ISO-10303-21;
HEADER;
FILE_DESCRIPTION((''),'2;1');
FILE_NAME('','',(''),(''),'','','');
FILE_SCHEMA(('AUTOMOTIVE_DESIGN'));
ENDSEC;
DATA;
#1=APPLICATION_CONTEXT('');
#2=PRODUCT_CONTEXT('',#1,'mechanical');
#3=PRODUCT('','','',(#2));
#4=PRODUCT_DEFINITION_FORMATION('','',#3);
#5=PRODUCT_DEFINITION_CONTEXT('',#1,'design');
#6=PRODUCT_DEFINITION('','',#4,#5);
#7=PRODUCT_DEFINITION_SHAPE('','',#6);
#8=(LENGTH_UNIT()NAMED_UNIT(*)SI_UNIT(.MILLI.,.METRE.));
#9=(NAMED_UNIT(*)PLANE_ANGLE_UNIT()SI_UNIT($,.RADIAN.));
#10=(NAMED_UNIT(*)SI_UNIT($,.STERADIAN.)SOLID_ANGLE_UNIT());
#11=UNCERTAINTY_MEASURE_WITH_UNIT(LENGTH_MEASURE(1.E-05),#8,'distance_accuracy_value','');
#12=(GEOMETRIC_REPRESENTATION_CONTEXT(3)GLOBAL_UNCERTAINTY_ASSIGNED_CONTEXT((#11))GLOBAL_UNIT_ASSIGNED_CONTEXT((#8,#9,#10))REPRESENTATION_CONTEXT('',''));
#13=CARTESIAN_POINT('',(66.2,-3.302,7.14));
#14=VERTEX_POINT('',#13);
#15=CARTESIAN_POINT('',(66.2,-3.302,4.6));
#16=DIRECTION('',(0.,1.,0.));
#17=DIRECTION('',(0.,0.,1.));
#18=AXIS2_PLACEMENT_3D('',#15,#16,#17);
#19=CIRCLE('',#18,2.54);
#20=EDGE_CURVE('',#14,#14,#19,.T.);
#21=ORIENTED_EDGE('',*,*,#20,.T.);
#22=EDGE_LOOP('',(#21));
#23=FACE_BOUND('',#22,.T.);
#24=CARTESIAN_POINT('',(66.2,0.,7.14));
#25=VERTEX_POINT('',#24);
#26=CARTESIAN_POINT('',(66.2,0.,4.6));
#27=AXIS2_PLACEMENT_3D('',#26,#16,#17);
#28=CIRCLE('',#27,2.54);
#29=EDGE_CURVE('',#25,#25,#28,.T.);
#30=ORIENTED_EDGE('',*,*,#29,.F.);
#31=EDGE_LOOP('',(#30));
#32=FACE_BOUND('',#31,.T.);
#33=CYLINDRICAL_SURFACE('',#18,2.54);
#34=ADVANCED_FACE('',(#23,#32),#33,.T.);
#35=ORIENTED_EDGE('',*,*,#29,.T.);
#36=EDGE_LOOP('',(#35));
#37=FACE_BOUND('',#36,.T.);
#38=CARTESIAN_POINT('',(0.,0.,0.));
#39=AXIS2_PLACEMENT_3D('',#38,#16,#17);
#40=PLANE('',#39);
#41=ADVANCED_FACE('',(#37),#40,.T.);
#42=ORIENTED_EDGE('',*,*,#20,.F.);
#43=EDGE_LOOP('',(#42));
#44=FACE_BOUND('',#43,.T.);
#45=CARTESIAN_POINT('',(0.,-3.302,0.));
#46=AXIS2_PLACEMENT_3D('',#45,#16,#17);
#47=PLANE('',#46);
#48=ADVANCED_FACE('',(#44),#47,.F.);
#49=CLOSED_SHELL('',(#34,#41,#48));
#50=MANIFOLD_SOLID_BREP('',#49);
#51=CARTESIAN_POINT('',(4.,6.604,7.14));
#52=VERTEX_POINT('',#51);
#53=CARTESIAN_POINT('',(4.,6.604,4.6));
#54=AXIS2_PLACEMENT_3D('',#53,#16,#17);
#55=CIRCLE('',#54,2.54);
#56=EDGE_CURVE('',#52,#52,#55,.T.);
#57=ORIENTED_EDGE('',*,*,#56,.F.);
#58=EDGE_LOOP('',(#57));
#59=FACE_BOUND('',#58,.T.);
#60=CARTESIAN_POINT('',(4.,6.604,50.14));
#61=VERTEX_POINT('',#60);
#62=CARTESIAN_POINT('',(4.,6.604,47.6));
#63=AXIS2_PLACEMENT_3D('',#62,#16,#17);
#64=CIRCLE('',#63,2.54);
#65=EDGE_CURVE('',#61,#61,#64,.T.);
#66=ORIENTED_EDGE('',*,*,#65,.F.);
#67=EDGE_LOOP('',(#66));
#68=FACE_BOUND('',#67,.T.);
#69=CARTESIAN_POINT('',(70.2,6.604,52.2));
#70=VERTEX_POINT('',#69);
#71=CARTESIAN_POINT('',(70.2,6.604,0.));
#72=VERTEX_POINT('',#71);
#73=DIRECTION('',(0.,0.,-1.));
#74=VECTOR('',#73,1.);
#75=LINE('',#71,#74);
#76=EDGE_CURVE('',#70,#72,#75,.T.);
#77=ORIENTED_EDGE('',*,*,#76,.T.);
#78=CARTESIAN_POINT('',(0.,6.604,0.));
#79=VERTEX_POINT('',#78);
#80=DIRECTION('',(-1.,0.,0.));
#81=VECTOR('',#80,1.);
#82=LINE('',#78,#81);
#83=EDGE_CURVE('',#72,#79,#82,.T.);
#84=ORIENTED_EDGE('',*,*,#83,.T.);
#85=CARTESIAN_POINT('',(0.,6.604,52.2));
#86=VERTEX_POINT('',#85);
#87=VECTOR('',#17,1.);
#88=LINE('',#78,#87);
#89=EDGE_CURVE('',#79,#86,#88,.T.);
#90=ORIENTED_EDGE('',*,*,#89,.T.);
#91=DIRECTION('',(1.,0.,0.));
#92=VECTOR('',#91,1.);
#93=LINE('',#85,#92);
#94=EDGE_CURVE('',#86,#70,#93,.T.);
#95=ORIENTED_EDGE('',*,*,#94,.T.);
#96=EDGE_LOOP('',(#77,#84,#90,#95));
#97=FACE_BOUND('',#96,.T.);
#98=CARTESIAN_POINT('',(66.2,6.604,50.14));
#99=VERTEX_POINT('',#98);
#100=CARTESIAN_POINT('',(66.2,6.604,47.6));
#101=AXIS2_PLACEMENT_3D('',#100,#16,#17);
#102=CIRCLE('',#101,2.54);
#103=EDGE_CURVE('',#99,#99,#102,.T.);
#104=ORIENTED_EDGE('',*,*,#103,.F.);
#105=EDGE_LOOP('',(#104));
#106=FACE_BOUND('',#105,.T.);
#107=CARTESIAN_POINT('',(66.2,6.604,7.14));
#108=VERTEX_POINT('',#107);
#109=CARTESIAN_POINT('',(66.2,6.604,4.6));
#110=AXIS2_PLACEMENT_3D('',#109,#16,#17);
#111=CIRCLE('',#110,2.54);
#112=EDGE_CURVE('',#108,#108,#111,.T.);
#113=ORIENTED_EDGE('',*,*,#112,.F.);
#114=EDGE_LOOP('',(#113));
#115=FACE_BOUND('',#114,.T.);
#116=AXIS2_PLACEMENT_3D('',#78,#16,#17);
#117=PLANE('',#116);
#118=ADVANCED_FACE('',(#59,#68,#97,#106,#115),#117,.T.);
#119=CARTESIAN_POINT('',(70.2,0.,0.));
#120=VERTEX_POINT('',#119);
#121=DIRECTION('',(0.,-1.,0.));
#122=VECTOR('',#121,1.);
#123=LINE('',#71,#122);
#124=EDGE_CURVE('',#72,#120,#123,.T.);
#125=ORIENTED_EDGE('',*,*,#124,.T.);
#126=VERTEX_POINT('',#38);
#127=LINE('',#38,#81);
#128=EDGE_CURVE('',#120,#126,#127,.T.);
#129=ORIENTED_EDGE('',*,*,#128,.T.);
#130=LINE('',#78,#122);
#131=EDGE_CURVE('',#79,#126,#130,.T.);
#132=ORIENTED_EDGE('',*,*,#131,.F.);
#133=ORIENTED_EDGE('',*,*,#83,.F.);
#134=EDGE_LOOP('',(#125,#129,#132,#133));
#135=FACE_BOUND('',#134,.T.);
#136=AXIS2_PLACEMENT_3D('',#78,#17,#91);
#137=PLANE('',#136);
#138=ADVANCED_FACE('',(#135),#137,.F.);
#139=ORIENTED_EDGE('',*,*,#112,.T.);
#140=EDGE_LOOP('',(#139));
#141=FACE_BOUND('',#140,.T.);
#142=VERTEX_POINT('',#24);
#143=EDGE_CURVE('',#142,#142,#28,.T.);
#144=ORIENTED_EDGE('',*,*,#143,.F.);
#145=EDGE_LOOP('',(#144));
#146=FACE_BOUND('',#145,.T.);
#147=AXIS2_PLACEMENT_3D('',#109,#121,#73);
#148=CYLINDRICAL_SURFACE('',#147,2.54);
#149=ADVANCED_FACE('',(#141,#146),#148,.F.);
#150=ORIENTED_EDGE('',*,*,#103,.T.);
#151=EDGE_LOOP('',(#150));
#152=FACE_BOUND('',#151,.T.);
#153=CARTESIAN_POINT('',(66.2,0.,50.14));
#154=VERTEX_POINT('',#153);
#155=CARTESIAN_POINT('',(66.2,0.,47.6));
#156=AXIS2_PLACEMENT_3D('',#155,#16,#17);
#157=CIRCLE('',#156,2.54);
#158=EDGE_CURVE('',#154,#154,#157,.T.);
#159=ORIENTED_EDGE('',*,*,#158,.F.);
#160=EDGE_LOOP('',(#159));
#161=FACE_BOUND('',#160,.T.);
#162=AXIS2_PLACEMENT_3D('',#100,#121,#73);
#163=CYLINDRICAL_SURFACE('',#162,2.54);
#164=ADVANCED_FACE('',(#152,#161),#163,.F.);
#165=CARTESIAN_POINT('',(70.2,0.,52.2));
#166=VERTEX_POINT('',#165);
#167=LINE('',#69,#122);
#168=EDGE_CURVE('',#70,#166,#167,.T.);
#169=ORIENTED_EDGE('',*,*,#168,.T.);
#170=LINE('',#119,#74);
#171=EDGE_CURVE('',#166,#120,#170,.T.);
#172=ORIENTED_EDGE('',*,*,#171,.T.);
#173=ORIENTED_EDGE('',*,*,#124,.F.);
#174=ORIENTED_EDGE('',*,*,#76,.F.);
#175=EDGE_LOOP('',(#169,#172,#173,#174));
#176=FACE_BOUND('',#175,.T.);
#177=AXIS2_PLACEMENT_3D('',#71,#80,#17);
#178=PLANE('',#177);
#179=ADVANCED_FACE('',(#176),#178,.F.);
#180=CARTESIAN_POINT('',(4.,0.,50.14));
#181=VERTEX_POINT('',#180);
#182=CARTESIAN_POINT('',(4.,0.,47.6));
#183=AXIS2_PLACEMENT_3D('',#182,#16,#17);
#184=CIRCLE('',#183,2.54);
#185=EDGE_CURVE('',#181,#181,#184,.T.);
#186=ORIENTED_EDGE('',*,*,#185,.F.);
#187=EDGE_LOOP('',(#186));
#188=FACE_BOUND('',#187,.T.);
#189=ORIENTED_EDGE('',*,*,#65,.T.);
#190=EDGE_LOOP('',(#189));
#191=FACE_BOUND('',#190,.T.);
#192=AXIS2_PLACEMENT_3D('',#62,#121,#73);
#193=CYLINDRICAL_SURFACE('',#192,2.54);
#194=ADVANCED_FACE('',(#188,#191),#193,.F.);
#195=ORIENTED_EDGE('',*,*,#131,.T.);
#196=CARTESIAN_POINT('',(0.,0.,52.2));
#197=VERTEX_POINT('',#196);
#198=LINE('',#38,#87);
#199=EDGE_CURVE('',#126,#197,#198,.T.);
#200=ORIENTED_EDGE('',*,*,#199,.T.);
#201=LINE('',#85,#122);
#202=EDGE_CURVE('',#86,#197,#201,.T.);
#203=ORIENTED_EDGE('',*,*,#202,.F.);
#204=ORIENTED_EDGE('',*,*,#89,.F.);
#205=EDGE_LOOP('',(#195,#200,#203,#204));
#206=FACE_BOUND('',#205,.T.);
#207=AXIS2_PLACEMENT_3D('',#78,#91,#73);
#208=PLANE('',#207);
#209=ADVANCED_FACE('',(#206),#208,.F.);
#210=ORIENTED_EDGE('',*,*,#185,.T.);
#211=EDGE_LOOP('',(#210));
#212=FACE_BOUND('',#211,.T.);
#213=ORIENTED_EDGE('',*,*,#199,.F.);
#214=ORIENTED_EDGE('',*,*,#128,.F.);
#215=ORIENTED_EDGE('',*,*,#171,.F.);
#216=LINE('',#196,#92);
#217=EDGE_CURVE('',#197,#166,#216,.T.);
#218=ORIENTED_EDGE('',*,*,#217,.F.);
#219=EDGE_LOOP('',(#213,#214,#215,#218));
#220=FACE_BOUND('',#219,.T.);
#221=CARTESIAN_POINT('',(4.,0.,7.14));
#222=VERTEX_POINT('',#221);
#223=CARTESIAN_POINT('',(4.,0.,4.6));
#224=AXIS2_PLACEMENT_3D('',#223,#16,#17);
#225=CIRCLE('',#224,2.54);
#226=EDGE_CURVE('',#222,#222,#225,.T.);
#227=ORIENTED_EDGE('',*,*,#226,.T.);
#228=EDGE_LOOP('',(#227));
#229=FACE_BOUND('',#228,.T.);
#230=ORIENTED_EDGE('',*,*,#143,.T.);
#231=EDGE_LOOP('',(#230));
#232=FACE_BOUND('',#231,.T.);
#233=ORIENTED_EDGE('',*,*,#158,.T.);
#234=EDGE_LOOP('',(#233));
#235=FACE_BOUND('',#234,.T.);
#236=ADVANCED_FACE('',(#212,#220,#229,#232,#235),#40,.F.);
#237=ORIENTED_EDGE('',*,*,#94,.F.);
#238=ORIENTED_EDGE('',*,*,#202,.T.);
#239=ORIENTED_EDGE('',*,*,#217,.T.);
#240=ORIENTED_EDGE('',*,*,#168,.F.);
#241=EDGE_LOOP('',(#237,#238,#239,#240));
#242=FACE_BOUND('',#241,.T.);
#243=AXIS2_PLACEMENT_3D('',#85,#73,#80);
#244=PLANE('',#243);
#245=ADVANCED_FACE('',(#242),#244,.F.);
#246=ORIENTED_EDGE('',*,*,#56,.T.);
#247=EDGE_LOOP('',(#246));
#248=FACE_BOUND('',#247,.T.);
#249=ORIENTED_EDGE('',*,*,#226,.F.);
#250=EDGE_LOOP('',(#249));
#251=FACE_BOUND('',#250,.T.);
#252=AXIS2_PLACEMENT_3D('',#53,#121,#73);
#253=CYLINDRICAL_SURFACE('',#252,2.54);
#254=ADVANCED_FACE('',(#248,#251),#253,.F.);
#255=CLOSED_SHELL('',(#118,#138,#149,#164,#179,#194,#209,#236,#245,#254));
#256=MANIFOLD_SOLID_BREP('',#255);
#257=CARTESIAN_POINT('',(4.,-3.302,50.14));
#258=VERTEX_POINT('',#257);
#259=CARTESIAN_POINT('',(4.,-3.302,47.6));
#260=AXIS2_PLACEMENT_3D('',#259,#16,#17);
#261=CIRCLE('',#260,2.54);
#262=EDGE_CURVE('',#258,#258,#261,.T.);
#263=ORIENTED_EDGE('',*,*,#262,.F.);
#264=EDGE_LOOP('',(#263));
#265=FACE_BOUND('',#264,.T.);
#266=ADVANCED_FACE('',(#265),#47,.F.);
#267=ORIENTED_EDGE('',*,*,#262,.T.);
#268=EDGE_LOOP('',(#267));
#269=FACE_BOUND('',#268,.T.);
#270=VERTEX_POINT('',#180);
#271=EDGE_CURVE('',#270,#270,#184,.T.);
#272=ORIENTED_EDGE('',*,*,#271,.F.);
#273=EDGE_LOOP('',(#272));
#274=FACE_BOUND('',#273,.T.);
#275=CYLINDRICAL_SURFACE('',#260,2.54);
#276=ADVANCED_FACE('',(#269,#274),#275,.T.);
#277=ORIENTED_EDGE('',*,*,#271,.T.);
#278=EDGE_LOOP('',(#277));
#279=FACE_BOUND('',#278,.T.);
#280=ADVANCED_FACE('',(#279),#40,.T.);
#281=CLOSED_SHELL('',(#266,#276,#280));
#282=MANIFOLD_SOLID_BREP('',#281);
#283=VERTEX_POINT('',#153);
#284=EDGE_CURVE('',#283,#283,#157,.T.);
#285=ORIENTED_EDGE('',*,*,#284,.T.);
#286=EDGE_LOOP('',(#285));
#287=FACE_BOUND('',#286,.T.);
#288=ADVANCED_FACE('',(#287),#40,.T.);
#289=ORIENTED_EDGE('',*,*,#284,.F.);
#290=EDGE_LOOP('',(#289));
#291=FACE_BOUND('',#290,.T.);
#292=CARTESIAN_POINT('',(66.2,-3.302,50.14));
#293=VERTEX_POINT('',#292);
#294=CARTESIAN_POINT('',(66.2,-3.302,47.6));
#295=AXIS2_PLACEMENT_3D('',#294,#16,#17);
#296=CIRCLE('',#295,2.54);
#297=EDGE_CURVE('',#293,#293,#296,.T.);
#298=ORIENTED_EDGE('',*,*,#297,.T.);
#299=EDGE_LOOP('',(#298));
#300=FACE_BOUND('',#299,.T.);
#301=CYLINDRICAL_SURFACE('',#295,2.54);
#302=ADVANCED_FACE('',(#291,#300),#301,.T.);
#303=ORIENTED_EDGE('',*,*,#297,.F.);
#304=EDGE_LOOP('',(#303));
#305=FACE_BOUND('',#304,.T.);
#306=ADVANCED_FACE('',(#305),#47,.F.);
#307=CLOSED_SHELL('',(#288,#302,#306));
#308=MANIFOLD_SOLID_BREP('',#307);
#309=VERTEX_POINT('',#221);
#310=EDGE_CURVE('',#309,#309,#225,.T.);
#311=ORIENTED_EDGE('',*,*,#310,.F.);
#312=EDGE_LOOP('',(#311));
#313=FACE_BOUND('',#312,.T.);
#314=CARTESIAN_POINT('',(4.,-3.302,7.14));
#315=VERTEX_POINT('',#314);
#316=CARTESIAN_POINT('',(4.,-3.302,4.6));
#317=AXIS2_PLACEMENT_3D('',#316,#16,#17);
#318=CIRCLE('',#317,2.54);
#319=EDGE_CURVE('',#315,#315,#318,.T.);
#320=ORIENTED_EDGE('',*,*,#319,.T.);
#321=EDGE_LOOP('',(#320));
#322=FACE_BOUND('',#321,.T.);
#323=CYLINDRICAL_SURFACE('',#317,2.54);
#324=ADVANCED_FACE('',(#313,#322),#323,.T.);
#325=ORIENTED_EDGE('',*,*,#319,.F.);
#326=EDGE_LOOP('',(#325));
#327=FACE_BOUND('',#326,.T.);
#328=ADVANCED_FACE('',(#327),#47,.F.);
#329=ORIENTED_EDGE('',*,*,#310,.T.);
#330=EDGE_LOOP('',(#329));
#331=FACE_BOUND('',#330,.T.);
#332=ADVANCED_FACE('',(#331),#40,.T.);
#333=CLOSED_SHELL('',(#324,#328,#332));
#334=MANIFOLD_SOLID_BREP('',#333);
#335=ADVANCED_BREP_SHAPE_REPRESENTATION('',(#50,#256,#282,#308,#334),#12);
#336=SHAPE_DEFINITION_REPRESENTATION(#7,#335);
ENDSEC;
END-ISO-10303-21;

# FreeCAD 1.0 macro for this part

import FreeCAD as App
import Part
import Sketcher

V = App.Vector
Q = App.Units.Quantity

doc = App.newDocument("Part")
params = doc.addObject("Spreadsheet::Sheet", "Params")
for row, (alias, value) in enumerate([
    ("sketch1_diameter", "0.2 in"),
    ("pad1_length", "0.26 in"),
    ("sketch2_diameter", "0.2 in"),
    ("pad2_length", "0.13 in"),
    ("sketch3_diameter", "0.2 in"),
    ("pad3_length", "0.13 in"),
    ("sketch4_diameter", "0.2 in"),
    ("pad4_length", "0.13 in"),
    ("sketch5_diameter", "0.2 in"),
    ("pad5_length", "0.13 in"),
], start=1):
    params.set(f"A{row}", alias)
    params.set(f"B{row}", "=" + value)
    params.setAlias(f"B{row}", alias)

body = doc.addObject("PartDesign::Body", "Body")

# Sketch on XZ plane
sketch1 = doc.addObject("Sketcher::SketchObject", "Sketch")
body.addObject(sketch1)
sketch1.AttachmentSupport = (doc.XZ_Plane, [""])
sketch1.MapMode = "FlatFace"
sketch1.addGeometry([
    Part.LineSegment(V(0, 0, 0), V(0, 52.2, 0)),  # 0
    Part.LineSegment(V(0, 52.2, 0), V(70.2, 52.2, 0)),  # 1
    Part.LineSegment(V(70.2, 52.2, 0), V(70.2, 0, 0)),  # 2
    Part.LineSegment(V(70.2, 0, 0), V(0, 0, 0)),  # 3
    Part.Circle(V(4, 47.6, 0), V(0, 0, 1), 2.54),  # 4
    Part.Circle(V(66.2, 47.6, 0), V(0, 0, 1), 2.54),  # 5
    Part.Circle(V(4, 4.6, 0), V(0, 0, 1), 2.54),  # 6
    Part.Circle(V(66.2, 4.6, 0), V(0, 0, 1), 2.54),  # 7
], False)
sketch1.addConstraint([
    Sketcher.Constraint("Coincident", 0, 2, 1, 1),
    Sketcher.Constraint("Coincident", 1, 2, 2, 1),
    Sketcher.Constraint("Coincident", 2, 2, 3, 1),
    Sketcher.Constraint("Coincident", 3, 2, 0, 1),
    Sketcher.Constraint("Vertical", 0),
    Sketcher.Constraint("Horizontal", 1),
    Sketcher.Constraint("Vertical", 2),
    Sketcher.Constraint("Horizontal", 3),
    Sketcher.Constraint("Coincident", 3, 2, -1, 1),
    Sketcher.Constraint("Equal", 4, 5),
    Sketcher.Constraint("Equal", 5, 6),
    Sketcher.Constraint("Equal", 6, 7),
    Sketcher.Constraint("Horizontal", 4, 3, 5, 3),
    Sketcher.Constraint("Horizontal", 6, 3, 7, 3),
    Sketcher.Constraint("Vertical", 4, 3, 6, 3),
    Sketcher.Constraint("Vertical", 5, 3, 7, 3),
    Sketcher.Constraint("Diameter", 4, Q("0.2 in")),
    Sketcher.Constraint("DistanceX", 1, 1, 1, 2, 70.2),
    Sketcher.Constraint("DistanceY", 0, 1, 0, 2, 52.2),
    Sketcher.Constraint("DistanceX", -1, 1, 4, 3, 4.0),
    Sketcher.Constraint("DistanceY", -1, 1, 4, 3, 47.6),
    Sketcher.Constraint("DistanceX", -1, 1, 5, 3, 66.2),
    Sketcher.Constraint("DistanceY", -1, 1, 6, 3, 4.6),
])
sketch1.setExpression("Constraints[16]", "Params.sketch1_diameter")
pad1 = doc.addObject("PartDesign::Pad", "Pad")
body.addObject(pad1)
pad1.Profile = sketch1
pad1.setExpression("Length", "Params.pad1_length")
pad1.Reversed = True
body2 = doc.addObject("PartDesign::Body", "Body001")

# Sketch on XZ plane
sketch2 = doc.addObject("Sketcher::SketchObject", "Sketch001")
body2.addObject(sketch2)
sketch2.AttachmentSupport = (doc.getObject("XZ_Plane001"), [""])
sketch2.MapMode = "FlatFace"
sketch2.addGeometry(Part.Circle(V(66.2, 4.6, 0), V(0, 0, 1), 2.54), False)
sketch2.addConstraint([
    Sketcher.Constraint("Diameter", 0, Q("0.2 in")),
    Sketcher.Constraint("DistanceX", -1, 1, 0, 3, 66.2),
    Sketcher.Constraint("DistanceY", -1, 1, 0, 3, 4.6),
])
sketch2.setExpression("Constraints[0]", "Params.sketch2_diameter")
pad2 = doc.addObject("PartDesign::Pad", "Pad001")
body2.addObject(pad2)
pad2.Profile = sketch2
pad2.setExpression("Length", "Params.pad2_length")
body3 = doc.addObject("PartDesign::Body", "Body002")

# Sketch on XZ plane
sketch3 = doc.addObject("Sketcher::SketchObject", "Sketch002")
body3.addObject(sketch3)
sketch3.AttachmentSupport = (doc.getObject("XZ_Plane002"), [""])
sketch3.MapMode = "FlatFace"
sketch3.addGeometry(Part.Circle(V(66.2, 47.6, 0), V(0, 0, 1), 2.54), False)
sketch3.addConstraint([
    Sketcher.Constraint("Diameter", 0, Q("0.2 in")),
    Sketcher.Constraint("DistanceX", -1, 1, 0, 3, 66.2),
    Sketcher.Constraint("DistanceY", -1, 1, 0, 3, 47.6),
])
sketch3.setExpression("Constraints[0]", "Params.sketch3_diameter")
pad3 = doc.addObject("PartDesign::Pad", "Pad002")
body3.addObject(pad3)
pad3.Profile = sketch3
pad3.setExpression("Length", "Params.pad3_length")
body4 = doc.addObject("PartDesign::Body", "Body003")

# Sketch on XZ plane
sketch4 = doc.addObject("Sketcher::SketchObject", "Sketch003")
body4.addObject(sketch4)
sketch4.AttachmentSupport = (doc.getObject("XZ_Plane003"), [""])
sketch4.MapMode = "FlatFace"
sketch4.addGeometry(Part.Circle(V(4, 47.6, 0), V(0, 0, 1), 2.54), False)
sketch4.addConstraint([
    Sketcher.Constraint("Diameter", 0, Q("0.2 in")),
    Sketcher.Constraint("DistanceX", -1, 1, 0, 3, 4.0),
    Sketcher.Constraint("DistanceY", -1, 1, 0, 3, 47.6),
])
sketch4.setExpression("Constraints[0]", "Params.sketch4_diameter")
pad4 = doc.addObject("PartDesign::Pad", "Pad003")
body4.addObject(pad4)
pad4.Profile = sketch4
pad4.setExpression("Length", "Params.pad4_length")
body5 = doc.addObject("PartDesign::Body", "Body004")

# Sketch on XZ plane
sketch5 = doc.addObject("Sketcher::SketchObject", "Sketch004")
body5.addObject(sketch5)
sketch5.AttachmentSupport = (doc.getObject("XZ_Plane004"), [""])
sketch5.MapMode = "FlatFace"
sketch5.addGeometry(Part.Circle(V(4, 4.6, 0), V(0, 0, 1), 2.54), False)
sketch5.addConstraint([
    Sketcher.Constraint("Diameter", 0, Q("0.2 in")),
    Sketcher.Constraint("DistanceX", -1, 1, 0, 3, 4.0),
    Sketcher.Constraint("DistanceY", -1, 1, 0, 3, 4.6),
])
sketch5.setExpression("Constraints[0]", "Params.sketch5_diameter")
pad5 = doc.addObject("PartDesign::Pad", "Pad004")
body5.addObject(pad5)
pad5.Profile = sketch5
pad5.setExpression("Length", "Params.pad5_length")

doc.recompute()
